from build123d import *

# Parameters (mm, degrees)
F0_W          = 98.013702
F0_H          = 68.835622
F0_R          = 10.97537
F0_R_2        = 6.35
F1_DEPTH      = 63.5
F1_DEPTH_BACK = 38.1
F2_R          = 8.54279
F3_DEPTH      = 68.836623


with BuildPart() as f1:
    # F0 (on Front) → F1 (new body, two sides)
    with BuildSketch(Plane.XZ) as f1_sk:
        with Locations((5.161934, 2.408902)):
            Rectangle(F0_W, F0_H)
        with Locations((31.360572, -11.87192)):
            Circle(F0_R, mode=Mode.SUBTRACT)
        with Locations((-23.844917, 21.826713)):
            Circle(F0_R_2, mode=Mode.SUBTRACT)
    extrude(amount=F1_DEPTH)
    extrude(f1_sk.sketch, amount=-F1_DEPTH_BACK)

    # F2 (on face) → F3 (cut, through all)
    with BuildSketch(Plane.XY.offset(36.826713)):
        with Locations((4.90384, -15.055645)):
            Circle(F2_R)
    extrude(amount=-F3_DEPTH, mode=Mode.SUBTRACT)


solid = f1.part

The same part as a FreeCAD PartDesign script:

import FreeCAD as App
import Part
import Sketcher
Q = App.Units.Quantity


def add_polygon(sketch, points):
    """Adds a closed chain of lines whose ends are joined by coincident constraints."""
    first, n = sketch.GeometryCount, len(points)
    for a, b in zip(points, points[1:] + points[:1]):
        sketch.addGeometry(Part.LineSegment(App.Vector(*a, 0), App.Vector(*b, 0)), False)
    for i in range(n):
        sketch.addConstraint(Sketcher.Constraint("Coincident", first + i, 2, first + (i + 1) % n, 1))

doc = App.newDocument("Part")
body = doc.addObject("PartDesign::Body", "Body")

# Sketch on XZ plane
sketch1 = body.newObject("Sketcher::SketchObject", "Sketch")
sketch1.AttachmentSupport = (doc.getObject("XZ_Plane"), [""])
sketch1.MapMode = "FlatFace"
add_polygon(sketch1, [(-44, 37), (-44, -32), (54, -32), (54, 37)])  # lines 0-3
sketch1.addGeometry(Part.Circle(App.Vector(31, -12, 0), App.Vector(0, 0, 1), 11), False)  # 4
sketch1.addGeometry(Part.Circle(App.Vector(-24, 22, 0), App.Vector(0, 0, 1), 6), False)  # 5
sketch1.addConstraint([
    Sketcher.Constraint("Vertical", 0),
    Sketcher.Constraint("Horizontal", 1),
    Sketcher.Constraint("Vertical", 2),
    Sketcher.Constraint("Horizontal", 3),
    Sketcher.Constraint("Diameter", 5, Q("0.5 in")),
    Sketcher.Constraint("Diameter", 4, Q("21.95074 mm")),
    Sketcher.Constraint("DistanceX", 1, 1, 1, 2, Q("98.013702 mm")),
    Sketcher.Constraint("DistanceY", 0, 2, 0, 1, Q("68.835622 mm")),
    Sketcher.Constraint("DistanceX", 0, 2, 5, 3, Q("20 mm")),
    Sketcher.Constraint("DistanceY", 5, 3, 2, 2, Q("15 mm")),
    Sketcher.Constraint("DistanceY", 4, 3, -1, 1, Q("11.87192 mm")),
    Sketcher.Constraint("DistanceY", 0, 2, -1, 1, Q("32.008909 mm")),
    Sketcher.Constraint("DistanceX", 5, 3, 4, 3, Q("55.205489 mm")),
    Sketcher.Constraint("DistanceX", -1, 1, 4, 3, Q("31.360572 mm")),
])
pad1 = body.newObject("PartDesign::Pad", "Pad")
pad1.Profile = sketch1
pad1.Type = "TwoLengths"
pad1.Length = Q("2.5 in")
pad1.Length2 = Q("1.5 in")

# Sketch on XY plane
sketch2 = body.newObject("Sketcher::SketchObject", "Sketch001")
sketch2.AttachmentSupport = (doc.getObject("XY_Plane"), [""])
sketch2.MapMode = "FlatFace"
sketch2.AttachmentOffset = App.Placement(App.Vector(0, 0, 36.826713), App.Rotation())
sketch2.addGeometry(Part.Circle(App.Vector(5, -15, 0), App.Vector(0, 0, 1), 9), False)
sketch2.addConstraint([
    Sketcher.Constraint("Diameter", 0, Q("17.08558 mm")),
    Sketcher.Constraint("DistanceX", -1, 1, 0, 3, Q("4.90384 mm")),
    Sketcher.Constraint("DistanceY", 0, 3, -1, 1, Q("15.055645 mm")),
])
pocket1 = body.newObject("PartDesign::Pocket", "Pocket")
pocket1.Profile = sketch2
pocket1.Type = "ThroughAll"

doc.recompute()
